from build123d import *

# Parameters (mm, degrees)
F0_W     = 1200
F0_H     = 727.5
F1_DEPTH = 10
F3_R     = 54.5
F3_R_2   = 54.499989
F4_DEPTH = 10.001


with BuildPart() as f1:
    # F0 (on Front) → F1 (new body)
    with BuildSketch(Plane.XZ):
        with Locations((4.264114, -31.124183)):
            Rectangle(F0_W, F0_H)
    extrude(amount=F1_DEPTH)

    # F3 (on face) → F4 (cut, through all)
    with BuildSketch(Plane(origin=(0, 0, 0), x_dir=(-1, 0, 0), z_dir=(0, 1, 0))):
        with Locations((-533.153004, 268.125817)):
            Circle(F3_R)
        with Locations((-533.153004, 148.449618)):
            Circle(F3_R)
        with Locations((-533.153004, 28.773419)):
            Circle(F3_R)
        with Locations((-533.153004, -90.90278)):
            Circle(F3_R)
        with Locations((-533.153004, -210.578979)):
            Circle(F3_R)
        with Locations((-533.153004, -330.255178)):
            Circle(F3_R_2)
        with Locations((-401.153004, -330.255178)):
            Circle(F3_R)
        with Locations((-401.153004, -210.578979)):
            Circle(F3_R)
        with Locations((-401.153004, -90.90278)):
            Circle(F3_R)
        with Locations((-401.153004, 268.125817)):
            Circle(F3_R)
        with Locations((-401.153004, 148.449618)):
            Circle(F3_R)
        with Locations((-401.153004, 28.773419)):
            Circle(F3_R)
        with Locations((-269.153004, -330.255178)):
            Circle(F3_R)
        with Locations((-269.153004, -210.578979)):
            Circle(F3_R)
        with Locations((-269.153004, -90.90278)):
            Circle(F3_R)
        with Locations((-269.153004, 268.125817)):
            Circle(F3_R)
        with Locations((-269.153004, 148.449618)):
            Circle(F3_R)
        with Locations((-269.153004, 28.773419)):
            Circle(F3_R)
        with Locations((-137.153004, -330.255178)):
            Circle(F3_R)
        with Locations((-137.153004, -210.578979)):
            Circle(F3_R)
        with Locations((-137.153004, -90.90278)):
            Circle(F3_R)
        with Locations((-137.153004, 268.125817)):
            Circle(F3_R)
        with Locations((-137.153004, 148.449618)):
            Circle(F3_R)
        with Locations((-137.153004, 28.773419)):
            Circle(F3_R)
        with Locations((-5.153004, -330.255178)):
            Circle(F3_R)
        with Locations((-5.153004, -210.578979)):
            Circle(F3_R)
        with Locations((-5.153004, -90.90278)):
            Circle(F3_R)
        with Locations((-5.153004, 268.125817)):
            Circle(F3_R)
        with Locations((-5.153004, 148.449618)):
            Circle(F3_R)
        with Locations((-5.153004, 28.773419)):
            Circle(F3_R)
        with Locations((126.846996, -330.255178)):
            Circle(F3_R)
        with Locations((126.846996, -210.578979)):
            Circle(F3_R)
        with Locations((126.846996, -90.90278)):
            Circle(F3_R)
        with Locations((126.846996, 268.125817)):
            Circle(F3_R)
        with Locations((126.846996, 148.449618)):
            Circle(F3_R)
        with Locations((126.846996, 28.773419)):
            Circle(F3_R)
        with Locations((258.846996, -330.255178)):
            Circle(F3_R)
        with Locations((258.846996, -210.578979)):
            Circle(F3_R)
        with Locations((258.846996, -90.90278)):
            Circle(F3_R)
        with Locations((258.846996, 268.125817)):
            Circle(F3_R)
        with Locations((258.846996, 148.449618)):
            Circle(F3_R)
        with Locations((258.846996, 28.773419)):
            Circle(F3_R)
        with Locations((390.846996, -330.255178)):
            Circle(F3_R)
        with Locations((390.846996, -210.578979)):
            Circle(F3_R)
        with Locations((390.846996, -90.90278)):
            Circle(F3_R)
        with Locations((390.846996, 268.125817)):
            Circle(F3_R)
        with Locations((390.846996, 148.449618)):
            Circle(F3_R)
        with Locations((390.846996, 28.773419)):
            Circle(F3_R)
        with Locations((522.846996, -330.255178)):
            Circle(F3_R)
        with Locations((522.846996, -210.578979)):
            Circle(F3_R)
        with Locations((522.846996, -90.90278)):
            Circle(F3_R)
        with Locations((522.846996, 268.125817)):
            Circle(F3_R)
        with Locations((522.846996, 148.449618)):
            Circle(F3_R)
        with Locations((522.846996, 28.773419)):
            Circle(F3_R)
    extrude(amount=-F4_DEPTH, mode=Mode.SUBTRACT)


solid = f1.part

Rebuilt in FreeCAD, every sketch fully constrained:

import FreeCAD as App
import Part
import Sketcher

V = App.Vector
Q = App.Units.Quantity


def add_polygon(sketch, points):
    """Adds a closed chain of lines whose ends are joined by coincident constraints."""
    first, n = sketch.GeometryCount, len(points)
    for a, b in zip(points, points[1:] + points[:1]):
        sketch.addGeometry(Part.LineSegment(App.Vector(*a, 0), App.Vector(*b, 0)), False)
    for i in range(n):
        sketch.addConstraint(Sketcher.Constraint("Coincident", first + i, 2, first + (i + 1) % n, 1))

doc = App.newDocument("Part")
body = doc.addObject("PartDesign::Body", "Body")

# Sketch on XZ plane
sketch1 = body.newObject("Sketcher::SketchObject", "Sketch")
sketch1.AttachmentSupport = (doc.getObject("XZ_Plane"), [""])
sketch1.MapMode = "FlatFace"
add_polygon(sketch1, [(-596, 333), (-596, -395), (604, -395), (604, 333)])  # lines 0-3
sketch1.addConstraint([
    Sketcher.Constraint("Vertical", 0),
    Sketcher.Constraint("Horizontal", 1),
    Sketcher.Constraint("Vertical", 2),
    Sketcher.Constraint("Horizontal", 3),
    Sketcher.Constraint("DistanceX", 1, 1, 1, 2, Q("1200 mm")),
    Sketcher.Constraint("DistanceY", 0, 2, 0, 1, Q("727.5 mm")),
    Sketcher.Constraint("DistanceX", 0, 2, -1, 1, Q("595.735886 mm")),
    Sketcher.Constraint("DistanceY", 0, 2, -1, 1, Q("394.874183 mm")),
])
pad1 = body.newObject("PartDesign::Pad", "Pad")
pad1.Profile = sketch1
pad1.Length = 10

# Sketch on XZ plane
sketch2 = body.newObject("Sketcher::SketchObject", "Sketch001")
sketch2.AttachmentSupport = (doc.getObject("XZ_Plane"), [""])
sketch2.MapMode = "FlatFace"
sketch2.addGeometry([
    Part.Circle(V(533, 268, 0), V(0, 0, 1), 54),  # 0
    Part.Circle(V(533, 148, 0), V(0, 0, 1), 54),  # 1
    Part.Circle(V(533, 29, 0), V(0, 0, 1), 54),  # 2
    Part.Circle(V(533, -91, 0), V(0, 0, 1), 54),  # 3
    Part.Circle(V(533, -211, 0), V(0, 0, 1), 54),  # 4
    Part.Circle(V(533, -330, 0), V(0, 0, 1), 54),  # 5
    Part.Circle(V(401, -330, 0), V(0, 0, 1), 54),  # 6
    Part.Circle(V(401, -211, 0), V(0, 0, 1), 54),  # 7
    Part.Circle(V(401, -91, 0), V(0, 0, 1), 54),  # 8
    Part.Circle(V(401, 268, 0), V(0, 0, 1), 54),  # 9
    Part.Circle(V(401, 148, 0), V(0, 0, 1), 54),  # 10
    Part.Circle(V(401, 29, 0), V(0, 0, 1), 54),  # 11
    Part.Circle(V(269, -330, 0), V(0, 0, 1), 54),  # 12
    Part.Circle(V(269, -211, 0), V(0, 0, 1), 54),  # 13
    Part.Circle(V(269, -91, 0), V(0, 0, 1), 54),  # 14
    Part.Circle(V(269, 268, 0), V(0, 0, 1), 54),  # 15
    Part.Circle(V(269, 148, 0), V(0, 0, 1), 54),  # 16
    Part.Circle(V(269, 29, 0), V(0, 0, 1), 54),  # 17
    Part.Circle(V(137, -330, 0), V(0, 0, 1), 54),  # 18
    Part.Circle(V(137, -211, 0), V(0, 0, 1), 54),  # 19
    Part.Circle(V(137, -91, 0), V(0, 0, 1), 54),  # 20
    Part.Circle(V(137, 268, 0), V(0, 0, 1), 54),  # 21
    Part.Circle(V(137, 148, 0), V(0, 0, 1), 54),  # 22
    Part.Circle(V(137, 29, 0), V(0, 0, 1), 54),  # 23
    Part.Circle(V(5, -330, 0), V(0, 0, 1), 54),  # 24
    Part.Circle(V(5, -211, 0), V(0, 0, 1), 54),  # 25
    Part.Circle(V(5, -91, 0), V(0, 0, 1), 54),  # 26
    Part.Circle(V(5, 268, 0), V(0, 0, 1), 54),  # 27
    Part.Circle(V(5, 148, 0), V(0, 0, 1), 54),  # 28
    Part.Circle(V(5, 29, 0), V(0, 0, 1), 54),  # 29
    Part.Circle(V(-127, -330, 0), V(0, 0, 1), 54),  # 30
    Part.Circle(V(-127, -211, 0), V(0, 0, 1), 54),  # 31
    Part.Circle(V(-127, -91, 0), V(0, 0, 1), 54),  # 32
    Part.Circle(V(-127, 268, 0), V(0, 0, 1), 54),  # 33
    Part.Circle(V(-127, 148, 0), V(0, 0, 1), 54),  # 34
    Part.Circle(V(-127, 29, 0), V(0, 0, 1), 54),  # 35
    Part.Circle(V(-259, -330, 0), V(0, 0, 1), 54),  # 36
    Part.Circle(V(-259, -211, 0), V(0, 0, 1), 54),  # 37
    Part.Circle(V(-259, -91, 0), V(0, 0, 1), 54),  # 38
    Part.Circle(V(-259, 268, 0), V(0, 0, 1), 54),  # 39
    Part.Circle(V(-259, 148, 0), V(0, 0, 1), 54),  # 40
    Part.Circle(V(-259, 29, 0), V(0, 0, 1), 54),  # 41
    Part.Circle(V(-391, -330, 0), V(0, 0, 1), 54),  # 42
    Part.Circle(V(-391, -211, 0), V(0, 0, 1), 54),  # 43
    Part.Circle(V(-391, -91, 0), V(0, 0, 1), 54),  # 44
    Part.Circle(V(-391, 268, 0), V(0, 0, 1), 54),  # 45
    Part.Circle(V(-391, 148, 0), V(0, 0, 1), 54),  # 46
    Part.Circle(V(-391, 29, 0), V(0, 0, 1), 54),  # 47
    Part.Circle(V(-523, -330, 0), V(0, 0, 1), 54),  # 48
    Part.Circle(V(-523, -211, 0), V(0, 0, 1), 54),  # 49
    Part.Circle(V(-523, -91, 0), V(0, 0, 1), 54),  # 50
    Part.Circle(V(-523, 268, 0), V(0, 0, 1), 54),  # 51
    Part.Circle(V(-523, 148, 0), V(0, 0, 1), 54),  # 52
    Part.Circle(V(-523, 29, 0), V(0, 0, 1), 54),  # 53
], False)
sketch2.addConstraint([
    Sketcher.Constraint("Equal", 0, 1),
    Sketcher.Constraint("Equal", 1, 2),
    Sketcher.Constraint("Equal", 2, 3),
    Sketcher.Constraint("Equal", 3, 4),
    Sketcher.Constraint("Equal", 4, 6),
    Sketcher.Constraint("Equal", 6, 7),
    Sketcher.Constraint("Equal", 7, 8),
    Sketcher.Constraint("Equal", 8, 9),
    Sketcher.Constraint("Equal", 9, 10),
    Sketcher.Constraint("Equal", 10, 11),
    Sketcher.Constraint("Equal", 11, 12),
    Sketcher.Constraint("Equal", 12, 13),
    Sketcher.Constraint("Equal", 13, 14),
    Sketcher.Constraint("Equal", 14, 15),
    Sketcher.Constraint("Equal", 15, 16),
    Sketcher.Constraint("Equal", 16, 17),
    Sketcher.Constraint("Equal", 17, 18),
    Sketcher.Constraint("Equal", 18, 19),
    Sketcher.Constraint("Equal", 19, 20),
    Sketcher.Constraint("Equal", 20, 21),
    Sketcher.Constraint("Equal", 21, 22),
    Sketcher.Constraint("Equal", 22, 23),
    Sketcher.Constraint("Equal", 23, 24),
    Sketcher.Constraint("Equal", 24, 25),
    Sketcher.Constraint("Equal", 25, 26),
    Sketcher.Constraint("Equal", 26, 27),
    Sketcher.Constraint("Equal", 27, 28),
    Sketcher.Constraint("Equal", 28, 29),
    Sketcher.Constraint("Equal", 29, 30),
    Sketcher.Constraint("Equal", 30, 31),
    Sketcher.Constraint("Equal", 31, 32),
    Sketcher.Constraint("Equal", 32, 33),
    Sketcher.Constraint("Equal", 33, 34),
    Sketcher.Constraint("Equal", 34, 35),
    Sketcher.Constraint("Equal", 35, 36),
    Sketcher.Constraint("Equal", 36, 37),
    Sketcher.Constraint("Equal", 37, 38),
    Sketcher.Constraint("Equal", 38, 39),
    Sketcher.Constraint("Equal", 39, 40),
    Sketcher.Constraint("Equal", 40, 41),
    Sketcher.Constraint("Equal", 41, 42),
    Sketcher.Constraint("Equal", 42, 43),
    Sketcher.Constraint("Equal", 43, 44),
    Sketcher.Constraint("Equal", 44, 45),
    Sketcher.Constraint("Equal", 45, 46),
    Sketcher.Constraint("Equal", 46, 47),
    Sketcher.Constraint("Equal", 47, 48),
    Sketcher.Constraint("Equal", 48, 49),
    Sketcher.Constraint("Equal", 49, 50),
    Sketcher.Constraint("Equal", 50, 51),
    Sketcher.Constraint("Equal", 51, 52),
    Sketcher.Constraint("Equal", 52, 53),
    Sketcher.Constraint("Horizontal", 5, 3, 6, 3),
    Sketcher.Constraint("Horizontal", 4, 3, 7, 3),
    Sketcher.Constraint("Horizontal", 3, 3, 8, 3),
    Sketcher.Constraint("Horizontal", 0, 3, 9, 3),
    Sketcher.Constraint("Horizontal", 1, 3, 10, 3),
    Sketcher.Constraint("Horizontal", 2, 3, 11, 3),
    Sketcher.Constraint("Horizontal", 6, 3, 12, 3),
    Sketcher.Constraint("Horizontal", 7, 3, 13, 3),
    Sketcher.Constraint("Horizontal", 8, 3, 14, 3),
    Sketcher.Constraint("Horizontal", 9, 3, 15, 3),
    Sketcher.Constraint("Horizontal", 10, 3, 16, 3),
    Sketcher.Constraint("Horizontal", 11, 3, 17, 3),
    Sketcher.Constraint("Horizontal", 12, 3, 18, 3),
    Sketcher.Constraint("Horizontal", 13, 3, 19, 3),
    Sketcher.Constraint("Horizontal", 14, 3, 20, 3),
    Sketcher.Constraint("Horizontal", 15, 3, 21, 3),
    Sketcher.Constraint("Horizontal", 16, 3, 22, 3),
    Sketcher.Constraint("Horizontal", 17, 3, 23, 3),
    Sketcher.Constraint("Horizontal", 18, 3, 24, 3),
    Sketcher.Constraint("Horizontal", 19, 3, 25, 3),
    Sketcher.Constraint("Horizontal", 20, 3, 26, 3),
    Sketcher.Constraint("Horizontal", 21, 3, 27, 3),
    Sketcher.Constraint("Horizontal", 22, 3, 28, 3),
    Sketcher.Constraint("Horizontal", 23, 3, 29, 3),
    Sketcher.Constraint("Horizontal", 24, 3, 30, 3),
    Sketcher.Constraint("Horizontal", 25, 3, 31, 3),
    Sketcher.Constraint("Horizontal", 26, 3, 32, 3),
    Sketcher.Constraint("Horizontal", 27, 3, 33, 3),
    Sketcher.Constraint("Horizontal", 28, 3, 34, 3),
    Sketcher.Constraint("Horizontal", 29, 3, 35, 3),
    Sketcher.Constraint("Horizontal", 30, 3, 36, 3),
    Sketcher.Constraint("Horizontal", 31, 3, 37, 3),
    Sketcher.Constraint("Horizontal", 32, 3, 38, 3),
    Sketcher.Constraint("Horizontal", 33, 3, 39, 3),
    Sketcher.Constraint("Horizontal", 34, 3, 40, 3),
    Sketcher.Constraint("Horizontal", 35, 3, 41, 3),
    Sketcher.Constraint("Horizontal", 36, 3, 42, 3),
    Sketcher.Constraint("Horizontal", 37, 3, 43, 3),
    Sketcher.Constraint("Horizontal", 38, 3, 44, 3),
    Sketcher.Constraint("Horizontal", 39, 3, 45, 3),
    Sketcher.Constraint("Horizontal", 40, 3, 46, 3),
    Sketcher.Constraint("Horizontal", 41, 3, 47, 3),
    Sketcher.Constraint("Horizontal", 42, 3, 48, 3),
    Sketcher.Constraint("Horizontal", 43, 3, 49, 3),
    Sketcher.Constraint("Horizontal", 44, 3, 50, 3),
    Sketcher.Constraint("Horizontal", 45, 3, 51, 3),
    Sketcher.Constraint("Horizontal", 46, 3, 52, 3),
    Sketcher.Constraint("Horizontal", 47, 3, 53, 3),
    Sketcher.Constraint("Vertical", 0, 3, 1, 3),
    Sketcher.Constraint("Vertical", 1, 3, 2, 3),
    Sketcher.Constraint("Vertical", 2, 3, 3, 3),
    Sketcher.Constraint("Vertical", 3, 3, 4, 3),
    Sketcher.Constraint("Vertical", 4, 3, 5, 3),
    Sketcher.Constraint("Vertical", 6, 3, 7, 3),
    Sketcher.Constraint("Vertical", 7, 3, 8, 3),
    Sketcher.Constraint("Vertical", 8, 3, 9, 3),
    Sketcher.Constraint("Vertical", 9, 3, 10, 3),
    Sketcher.Constraint("Vertical", 10, 3, 11, 3),
    Sketcher.Constraint("Vertical", 12, 3, 13, 3),
    Sketcher.Constraint("Vertical", 13, 3, 14, 3),
    Sketcher.Constraint("Vertical", 14, 3, 15, 3),
    Sketcher.Constraint("Vertical", 15, 3, 16, 3),
    Sketcher.Constraint("Vertical", 16, 3, 17, 3),
    Sketcher.Constraint("Vertical", 18, 3, 19, 3),
    Sketcher.Constraint("Vertical", 19, 3, 20, 3),
    Sketcher.Constraint("Vertical", 20, 3, 21, 3),
    Sketcher.Constraint("Vertical", 21, 3, 22, 3),
    Sketcher.Constraint("Vertical", 22, 3, 23, 3),
    Sketcher.Constraint("Vertical", 24, 3, 25, 3),
    Sketcher.Constraint("Vertical", 25, 3, 26, 3),
    Sketcher.Constraint("Vertical", 26, 3, 27, 3),
    Sketcher.Constraint("Vertical", 27, 3, 28, 3),
    Sketcher.Constraint("Vertical", 28, 3, 29, 3),
    Sketcher.Constraint("Vertical", 30, 3, 31, 3),
    Sketcher.Constraint("Vertical", 31, 3, 32, 3),
    Sketcher.Constraint("Vertical", 32, 3, 33, 3),
    Sketcher.Constraint("Vertical", 33, 3, 34, 3),
    Sketcher.Constraint("Vertical", 34, 3, 35, 3),
    Sketcher.Constraint("Vertical", 36, 3, 37, 3),
    Sketcher.Constraint("Vertical", 37, 3, 38, 3),
    Sketcher.Constraint("Vertical", 38, 3, 39, 3),
    Sketcher.Constraint("Vertical", 39, 3, 40, 3),
    Sketcher.Constraint("Vertical", 40, 3, 41, 3),
    Sketcher.Constraint("Vertical", 42, 3, 43, 3),
    Sketcher.Constraint("Vertical", 43, 3, 44, 3),
    Sketcher.Constraint("Vertical", 44, 3, 45, 3),
    Sketcher.Constraint("Vertical", 45, 3, 46, 3),
    Sketcher.Constraint("Vertical", 46, 3, 47, 3),
    Sketcher.Constraint("Vertical", 48, 3, 49, 3),
    Sketcher.Constraint("Vertical", 49, 3, 50, 3),
    Sketcher.Constraint("Vertical", 50, 3, 51, 3),
    Sketcher.Constraint("Vertical", 51, 3, 52, 3),
    Sketcher.Constraint("Vertical", 52, 3, 53, 3),
    Sketcher.Constraint("Diameter", 0, Q("109 mm")),
    Sketcher.Constraint("DistanceX", 6, 3, 5, 3, Q("132 mm")),
    Sketcher.Constraint("DistanceX", 12, 3, 6, 3, Q("132 mm")),
    Sketcher.Constraint("DistanceX", 18, 3, 12, 3, Q("132 mm")),
    Sketcher.Constraint("DistanceX", 24, 3, 18, 3, Q("132 mm")),
    Sketcher.Constraint("DistanceX", 30, 3, 24, 3, Q("132 mm")),
    Sketcher.Constraint("DistanceX", 36, 3, 30, 3, Q("132 mm")),
    Sketcher.Constraint("DistanceX", 42, 3, 36, 3, Q("132 mm")),
    Sketcher.Constraint("DistanceX", 48, 3, 42, 3, Q("132 mm")),
    Sketcher.Constraint("Diameter", 5, Q("108.999978 mm")),
    Sketcher.Constraint("DistanceY", 1, 3, 0, 3, Q("119.676199 mm")),
    Sketcher.Constraint("DistanceY", 2, 3, 1, 3, Q("119.676199 mm")),
    Sketcher.Constraint("DistanceY", 3, 3, 2, 3, Q("119.676199 mm")),
    Sketcher.Constraint("DistanceY", 4, 3, 3, 3, Q("119.676199 mm")),
    Sketcher.Constraint("DistanceY", 5, 3, 4, 3, Q("119.676199 mm")),
    Sketcher.Constraint("DistanceY", -1, 1, 2, 3, Q("28.773419 mm")),
    Sketcher.Constraint("DistanceX", -1, 1, 0, 3, Q("533.153004 mm")),
])
pocket1 = body.newObject("PartDesign::Pocket", "Pocket")
pocket1.Profile = sketch2
pocket1.Type = "ThroughAll"
pocket1.Reversed = True

doc.recompute()
